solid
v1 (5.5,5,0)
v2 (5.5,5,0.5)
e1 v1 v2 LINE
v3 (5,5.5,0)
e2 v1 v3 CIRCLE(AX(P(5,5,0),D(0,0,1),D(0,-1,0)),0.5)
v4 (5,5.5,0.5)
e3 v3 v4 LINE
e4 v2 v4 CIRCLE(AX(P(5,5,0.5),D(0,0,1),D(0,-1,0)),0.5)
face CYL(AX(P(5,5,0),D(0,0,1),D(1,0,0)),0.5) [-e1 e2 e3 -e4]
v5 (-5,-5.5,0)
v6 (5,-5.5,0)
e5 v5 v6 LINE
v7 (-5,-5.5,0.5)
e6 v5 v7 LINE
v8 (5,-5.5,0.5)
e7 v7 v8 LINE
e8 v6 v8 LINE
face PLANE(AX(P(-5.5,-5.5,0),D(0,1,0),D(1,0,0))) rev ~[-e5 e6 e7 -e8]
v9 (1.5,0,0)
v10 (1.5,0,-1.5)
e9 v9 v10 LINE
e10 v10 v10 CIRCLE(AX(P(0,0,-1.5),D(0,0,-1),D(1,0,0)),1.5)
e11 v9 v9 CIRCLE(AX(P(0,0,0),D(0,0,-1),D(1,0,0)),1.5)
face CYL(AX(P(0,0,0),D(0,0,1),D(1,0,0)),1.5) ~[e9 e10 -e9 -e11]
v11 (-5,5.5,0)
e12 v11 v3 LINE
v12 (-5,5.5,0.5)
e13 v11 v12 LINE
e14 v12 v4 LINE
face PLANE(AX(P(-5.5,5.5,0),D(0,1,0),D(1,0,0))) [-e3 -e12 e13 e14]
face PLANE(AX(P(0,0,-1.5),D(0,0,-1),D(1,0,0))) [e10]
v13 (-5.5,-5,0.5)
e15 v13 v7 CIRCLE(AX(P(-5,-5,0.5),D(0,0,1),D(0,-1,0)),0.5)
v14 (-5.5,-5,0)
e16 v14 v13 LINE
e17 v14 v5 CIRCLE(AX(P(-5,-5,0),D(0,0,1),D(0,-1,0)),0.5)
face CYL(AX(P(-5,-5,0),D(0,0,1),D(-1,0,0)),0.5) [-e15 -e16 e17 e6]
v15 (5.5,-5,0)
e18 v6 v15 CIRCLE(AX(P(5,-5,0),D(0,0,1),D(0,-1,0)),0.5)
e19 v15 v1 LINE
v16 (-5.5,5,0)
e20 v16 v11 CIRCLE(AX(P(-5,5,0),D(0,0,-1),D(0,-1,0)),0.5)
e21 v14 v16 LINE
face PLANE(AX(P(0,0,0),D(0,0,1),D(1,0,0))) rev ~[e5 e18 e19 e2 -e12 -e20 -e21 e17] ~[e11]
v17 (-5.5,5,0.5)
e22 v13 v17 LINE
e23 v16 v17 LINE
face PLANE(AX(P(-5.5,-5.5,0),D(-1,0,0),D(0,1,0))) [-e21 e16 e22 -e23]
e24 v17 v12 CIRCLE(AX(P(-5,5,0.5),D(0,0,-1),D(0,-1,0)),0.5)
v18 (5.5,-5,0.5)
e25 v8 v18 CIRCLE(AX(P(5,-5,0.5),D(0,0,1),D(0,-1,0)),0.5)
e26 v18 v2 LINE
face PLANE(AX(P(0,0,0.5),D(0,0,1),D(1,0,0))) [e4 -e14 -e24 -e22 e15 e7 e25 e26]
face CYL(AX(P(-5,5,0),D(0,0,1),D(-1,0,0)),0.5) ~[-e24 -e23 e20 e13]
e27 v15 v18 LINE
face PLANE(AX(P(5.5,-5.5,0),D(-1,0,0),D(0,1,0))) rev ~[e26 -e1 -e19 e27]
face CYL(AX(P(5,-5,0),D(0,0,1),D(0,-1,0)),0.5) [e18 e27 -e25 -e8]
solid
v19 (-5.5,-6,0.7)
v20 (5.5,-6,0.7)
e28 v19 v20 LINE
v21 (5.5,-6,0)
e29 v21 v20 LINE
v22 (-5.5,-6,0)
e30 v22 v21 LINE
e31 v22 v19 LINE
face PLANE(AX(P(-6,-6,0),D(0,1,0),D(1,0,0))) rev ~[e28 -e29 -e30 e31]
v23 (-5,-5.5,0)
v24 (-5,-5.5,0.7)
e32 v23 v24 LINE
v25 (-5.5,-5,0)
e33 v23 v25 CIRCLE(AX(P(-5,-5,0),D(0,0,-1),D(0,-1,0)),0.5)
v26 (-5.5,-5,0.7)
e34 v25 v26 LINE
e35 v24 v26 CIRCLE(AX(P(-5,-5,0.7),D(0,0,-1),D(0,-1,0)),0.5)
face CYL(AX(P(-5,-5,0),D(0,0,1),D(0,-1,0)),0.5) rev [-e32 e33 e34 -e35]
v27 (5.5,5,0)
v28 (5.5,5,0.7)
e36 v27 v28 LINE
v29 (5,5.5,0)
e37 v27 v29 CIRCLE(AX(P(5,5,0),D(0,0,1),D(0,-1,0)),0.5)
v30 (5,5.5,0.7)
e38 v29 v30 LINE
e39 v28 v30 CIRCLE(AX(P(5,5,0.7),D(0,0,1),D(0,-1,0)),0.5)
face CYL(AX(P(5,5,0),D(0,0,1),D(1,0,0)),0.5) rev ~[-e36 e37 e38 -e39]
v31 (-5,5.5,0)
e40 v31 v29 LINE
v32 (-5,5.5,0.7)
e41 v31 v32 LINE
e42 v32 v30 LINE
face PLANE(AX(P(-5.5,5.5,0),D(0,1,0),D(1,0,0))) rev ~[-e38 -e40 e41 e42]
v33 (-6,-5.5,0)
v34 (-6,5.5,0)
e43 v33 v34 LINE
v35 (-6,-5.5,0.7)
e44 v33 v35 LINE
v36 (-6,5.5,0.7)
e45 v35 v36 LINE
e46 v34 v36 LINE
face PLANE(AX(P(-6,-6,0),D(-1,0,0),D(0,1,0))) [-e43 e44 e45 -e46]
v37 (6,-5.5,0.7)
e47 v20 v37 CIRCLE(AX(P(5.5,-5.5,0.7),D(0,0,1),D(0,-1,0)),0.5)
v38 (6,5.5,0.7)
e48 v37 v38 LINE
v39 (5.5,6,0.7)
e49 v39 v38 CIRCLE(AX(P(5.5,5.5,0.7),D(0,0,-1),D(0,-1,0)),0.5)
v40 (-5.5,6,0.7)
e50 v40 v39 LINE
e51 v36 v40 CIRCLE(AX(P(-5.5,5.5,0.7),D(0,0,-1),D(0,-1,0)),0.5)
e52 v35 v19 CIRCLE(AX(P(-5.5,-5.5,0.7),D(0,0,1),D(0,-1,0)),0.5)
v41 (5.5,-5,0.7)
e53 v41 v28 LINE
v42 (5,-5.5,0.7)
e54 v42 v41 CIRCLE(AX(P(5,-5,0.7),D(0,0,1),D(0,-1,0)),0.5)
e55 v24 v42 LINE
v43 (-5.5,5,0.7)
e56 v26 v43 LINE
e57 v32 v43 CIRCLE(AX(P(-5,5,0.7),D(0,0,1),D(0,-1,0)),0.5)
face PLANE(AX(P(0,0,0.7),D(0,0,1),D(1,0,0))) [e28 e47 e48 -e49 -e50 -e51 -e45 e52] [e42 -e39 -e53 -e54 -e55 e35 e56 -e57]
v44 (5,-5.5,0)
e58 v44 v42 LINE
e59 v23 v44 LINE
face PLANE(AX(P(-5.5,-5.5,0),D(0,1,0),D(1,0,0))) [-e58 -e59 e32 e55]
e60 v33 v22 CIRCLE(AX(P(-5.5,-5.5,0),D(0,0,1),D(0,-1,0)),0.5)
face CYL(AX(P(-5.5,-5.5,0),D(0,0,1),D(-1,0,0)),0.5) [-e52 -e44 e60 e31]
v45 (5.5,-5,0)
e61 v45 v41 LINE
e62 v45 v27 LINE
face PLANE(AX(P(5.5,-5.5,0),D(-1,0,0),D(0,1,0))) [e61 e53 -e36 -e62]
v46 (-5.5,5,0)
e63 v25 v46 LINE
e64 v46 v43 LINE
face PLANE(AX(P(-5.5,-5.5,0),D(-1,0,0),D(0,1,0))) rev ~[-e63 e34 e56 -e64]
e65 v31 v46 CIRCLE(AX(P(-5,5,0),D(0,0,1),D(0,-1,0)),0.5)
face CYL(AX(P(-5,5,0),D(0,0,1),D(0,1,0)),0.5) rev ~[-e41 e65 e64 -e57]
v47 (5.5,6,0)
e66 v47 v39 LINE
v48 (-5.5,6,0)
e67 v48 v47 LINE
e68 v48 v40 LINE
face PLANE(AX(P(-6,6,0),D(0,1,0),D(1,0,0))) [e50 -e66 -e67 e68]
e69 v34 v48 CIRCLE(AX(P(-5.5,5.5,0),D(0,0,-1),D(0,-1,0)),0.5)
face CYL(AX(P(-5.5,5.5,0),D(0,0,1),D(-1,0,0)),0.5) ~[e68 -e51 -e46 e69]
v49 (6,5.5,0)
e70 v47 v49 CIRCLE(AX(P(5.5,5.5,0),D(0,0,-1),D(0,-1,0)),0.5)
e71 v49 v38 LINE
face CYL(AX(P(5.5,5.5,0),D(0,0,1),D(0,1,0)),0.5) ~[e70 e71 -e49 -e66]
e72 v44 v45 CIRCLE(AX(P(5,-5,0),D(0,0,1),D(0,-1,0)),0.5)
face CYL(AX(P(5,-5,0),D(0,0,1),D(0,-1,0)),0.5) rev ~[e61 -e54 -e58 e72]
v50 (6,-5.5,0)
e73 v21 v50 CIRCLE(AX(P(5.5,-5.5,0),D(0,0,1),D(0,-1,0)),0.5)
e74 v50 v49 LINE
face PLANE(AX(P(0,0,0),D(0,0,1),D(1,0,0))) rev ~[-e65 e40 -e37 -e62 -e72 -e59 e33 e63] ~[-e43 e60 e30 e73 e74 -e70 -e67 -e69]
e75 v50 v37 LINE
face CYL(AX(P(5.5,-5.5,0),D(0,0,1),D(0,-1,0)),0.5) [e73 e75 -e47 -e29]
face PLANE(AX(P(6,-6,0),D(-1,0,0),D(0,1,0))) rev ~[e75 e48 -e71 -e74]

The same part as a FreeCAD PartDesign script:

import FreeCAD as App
import Part
import Sketcher
from FreeCAD import Vector


def edges_at(feature, points):
    """Names of the edges that pass closest to the given points."""
    edges = feature.Shape.Edges
    near = lambda p: min(range(len(edges)), key=lambda i: edges[i].distToShape(Part.Vertex(*p))[0])
    return sorted({f"Edge{near(p) + 1}" for p in points})

doc = App.newDocument("Part")
body = doc.addObject("PartDesign::Body", "Body")

# Sketch on XY plane
sketch1 = body.newObject("Sketcher::SketchObject", "Sketch")
sketch1.AttachmentSupport = (doc.getObject("XY_Plane"), [""])
sketch1.MapMode = "FlatFace"
sketch1.addGeometry([
    Part.LineSegment(Vector(-6, 6, 0), Vector(-6, -6, 0)),  # 0
    Part.LineSegment(Vector(-6, -6, 0), Vector(6, -6, 0)),  # 1
    Part.LineSegment(Vector(6, -6, 0), Vector(6, 6, 0)),  # 2
    Part.LineSegment(Vector(6, 6, 0), Vector(-6, 6, 0)),  # 3
    Part.LineSegment(Vector(5.5, -5.5, 0), Vector(-5.5, -5.5, 0)),  # 4
    Part.LineSegment(Vector(-5.5, -5.5, 0), Vector(-5.5, 5.5, 0)),  # 5
    Part.LineSegment(Vector(-5.5, 5.5, 0), Vector(5.5, 5.5, 0)),  # 6
    Part.LineSegment(Vector(5.5, 5.5, 0), Vector(5.5, -5.5, 0)),  # 7
], False)
sketch1.addConstraint([
    Sketcher.Constraint("Coincident", 0, 2, 1, 1),
    Sketcher.Constraint("Coincident", 1, 2, 2, 1),
    Sketcher.Constraint("Coincident", 2, 2, 3, 1),
    Sketcher.Constraint("Coincident", 3, 2, 0, 1),
    Sketcher.Constraint("Coincident", 4, 2, 5, 1),
    Sketcher.Constraint("Coincident", 5, 2, 6, 1),
    Sketcher.Constraint("Coincident", 6, 2, 7, 1),
    Sketcher.Constraint("Coincident", 7, 2, 4, 1),
    Sketcher.Constraint("Vertical", 0),
    Sketcher.Constraint("Horizontal", 1),
    Sketcher.Constraint("Vertical", 2),
    Sketcher.Constraint("Horizontal", 3),
    Sketcher.Constraint("Horizontal", 4),
    Sketcher.Constraint("Vertical", 5),
    Sketcher.Constraint("Horizontal", 6),
    Sketcher.Constraint("Vertical", 7),
    Sketcher.Constraint("Symmetric", 0, 2, 2, 2, -1, 1),
    Sketcher.Constraint("Symmetric", 4, 2, 6, 2, -1, 1),
    Sketcher.Constraint("Equal", 3, 0),
    Sketcher.Constraint("Equal", 6, 5),
    Sketcher.Constraint("DistanceX", 1, 1, 1, 2, 12.0),
    Sketcher.Constraint("DistanceX", 4, 2, 4, 1, 11.0),
])
pad1 = body.newObject("PartDesign::Pad", "Pad")
pad1.Profile = sketch1
pad1.Length = 0.7
doc.recompute()

fillet = body.newObject("PartDesign::Fillet", "Fillet")
fillet.Base = (pad1, edges_at(pad1, [
    (6, 6, 0.35),
    (5.5, 5.5, 0.35),
    (-5.5, 5.5, 0.35),
    (-6, 6, 0.35),
    (-5.5, -5.5, 0.35),
    (-6, -6, 0.35),
    (5.5, -5.5, 0.35),
    (6, -6, 0.35),
]))
fillet.Radius = 0.5
body2 = doc.addObject("PartDesign::Body", "Body001")

# Sketch on XY plane
sketch2 = body2.newObject("Sketcher::SketchObject", "Sketch001")
sketch2.AttachmentSupport = (doc.getObject("XY_Plane001"), [""])
sketch2.MapMode = "FlatFace"
sketch2.addGeometry([
    Part.LineSegment(Vector(-5.5, 5.5, 0), Vector(-5.5, -5.5, 0)),
    Part.LineSegment(Vector(-5.5, -5.5, 0), Vector(5.5, -5.5, 0)),
    Part.LineSegment(Vector(5.5, -5.5, 0), Vector(5.5, 5.5, 0)),
    Part.LineSegment(Vector(5.5, 5.5, 0), Vector(-5.5, 5.5, 0)),
], False)
sketch2.addConstraint([
    Sketcher.Constraint("Coincident", 0, 2, 1, 1),
    Sketcher.Constraint("Coincident", 1, 2, 2, 1),
    Sketcher.Constraint("Coincident", 2, 2, 3, 1),
    Sketcher.Constraint("Coincident", 3, 2, 0, 1),
    Sketcher.Constraint("Vertical", 0),
    Sketcher.Constraint("Horizontal", 1),
    Sketcher.Constraint("Vertical", 2),
    Sketcher.Constraint("Horizontal", 3),
    Sketcher.Constraint("Symmetric", 0, 2, 2, 2, -1, 1),
    Sketcher.Constraint("Equal", 3, 0),
    Sketcher.Constraint("DistanceX", 1, 1, 1, 2, 11.0),
])
pad2 = body2.newObject("PartDesign::Pad", "Pad001")
pad2.Profile = sketch2
pad2.Length = 0.5
doc.recompute()

fillet2 = body2.newObject("PartDesign::Fillet", "Fillet001")
fillet2.Base = (pad2, edges_at(pad2, [
    (-5.5, 5.5, 0.25),
    (5.5, 5.5, 0.25),
    (5.5, -5.5, 0.25),
    (-5.5, -5.5, 0.25),
]))
fillet2.Radius = 0.5

# Sketch on XY plane
sketch3 = body2.newObject("Sketcher::SketchObject", "Sketch002")
sketch3.AttachmentSupport = (doc.getObject("XY_Plane001"), [""])
sketch3.MapMode = "FlatFace"
sketch3.addGeometry(Part.Circle(Vector(0, 0, 0), Vector(0, 0, 1), 1.5), False)
sketch3.addConstraint([
    Sketcher.Constraint("Coincident", 0, 3, -1, 1),
    Sketcher.Constraint("Diameter", 0, 3.0),
])
pad3 = body2.newObject("PartDesign::Pad", "Pad002")
pad3.Profile = sketch3
pad3.Length = 1.5
pad3.Reversed = True

doc.recompute()
